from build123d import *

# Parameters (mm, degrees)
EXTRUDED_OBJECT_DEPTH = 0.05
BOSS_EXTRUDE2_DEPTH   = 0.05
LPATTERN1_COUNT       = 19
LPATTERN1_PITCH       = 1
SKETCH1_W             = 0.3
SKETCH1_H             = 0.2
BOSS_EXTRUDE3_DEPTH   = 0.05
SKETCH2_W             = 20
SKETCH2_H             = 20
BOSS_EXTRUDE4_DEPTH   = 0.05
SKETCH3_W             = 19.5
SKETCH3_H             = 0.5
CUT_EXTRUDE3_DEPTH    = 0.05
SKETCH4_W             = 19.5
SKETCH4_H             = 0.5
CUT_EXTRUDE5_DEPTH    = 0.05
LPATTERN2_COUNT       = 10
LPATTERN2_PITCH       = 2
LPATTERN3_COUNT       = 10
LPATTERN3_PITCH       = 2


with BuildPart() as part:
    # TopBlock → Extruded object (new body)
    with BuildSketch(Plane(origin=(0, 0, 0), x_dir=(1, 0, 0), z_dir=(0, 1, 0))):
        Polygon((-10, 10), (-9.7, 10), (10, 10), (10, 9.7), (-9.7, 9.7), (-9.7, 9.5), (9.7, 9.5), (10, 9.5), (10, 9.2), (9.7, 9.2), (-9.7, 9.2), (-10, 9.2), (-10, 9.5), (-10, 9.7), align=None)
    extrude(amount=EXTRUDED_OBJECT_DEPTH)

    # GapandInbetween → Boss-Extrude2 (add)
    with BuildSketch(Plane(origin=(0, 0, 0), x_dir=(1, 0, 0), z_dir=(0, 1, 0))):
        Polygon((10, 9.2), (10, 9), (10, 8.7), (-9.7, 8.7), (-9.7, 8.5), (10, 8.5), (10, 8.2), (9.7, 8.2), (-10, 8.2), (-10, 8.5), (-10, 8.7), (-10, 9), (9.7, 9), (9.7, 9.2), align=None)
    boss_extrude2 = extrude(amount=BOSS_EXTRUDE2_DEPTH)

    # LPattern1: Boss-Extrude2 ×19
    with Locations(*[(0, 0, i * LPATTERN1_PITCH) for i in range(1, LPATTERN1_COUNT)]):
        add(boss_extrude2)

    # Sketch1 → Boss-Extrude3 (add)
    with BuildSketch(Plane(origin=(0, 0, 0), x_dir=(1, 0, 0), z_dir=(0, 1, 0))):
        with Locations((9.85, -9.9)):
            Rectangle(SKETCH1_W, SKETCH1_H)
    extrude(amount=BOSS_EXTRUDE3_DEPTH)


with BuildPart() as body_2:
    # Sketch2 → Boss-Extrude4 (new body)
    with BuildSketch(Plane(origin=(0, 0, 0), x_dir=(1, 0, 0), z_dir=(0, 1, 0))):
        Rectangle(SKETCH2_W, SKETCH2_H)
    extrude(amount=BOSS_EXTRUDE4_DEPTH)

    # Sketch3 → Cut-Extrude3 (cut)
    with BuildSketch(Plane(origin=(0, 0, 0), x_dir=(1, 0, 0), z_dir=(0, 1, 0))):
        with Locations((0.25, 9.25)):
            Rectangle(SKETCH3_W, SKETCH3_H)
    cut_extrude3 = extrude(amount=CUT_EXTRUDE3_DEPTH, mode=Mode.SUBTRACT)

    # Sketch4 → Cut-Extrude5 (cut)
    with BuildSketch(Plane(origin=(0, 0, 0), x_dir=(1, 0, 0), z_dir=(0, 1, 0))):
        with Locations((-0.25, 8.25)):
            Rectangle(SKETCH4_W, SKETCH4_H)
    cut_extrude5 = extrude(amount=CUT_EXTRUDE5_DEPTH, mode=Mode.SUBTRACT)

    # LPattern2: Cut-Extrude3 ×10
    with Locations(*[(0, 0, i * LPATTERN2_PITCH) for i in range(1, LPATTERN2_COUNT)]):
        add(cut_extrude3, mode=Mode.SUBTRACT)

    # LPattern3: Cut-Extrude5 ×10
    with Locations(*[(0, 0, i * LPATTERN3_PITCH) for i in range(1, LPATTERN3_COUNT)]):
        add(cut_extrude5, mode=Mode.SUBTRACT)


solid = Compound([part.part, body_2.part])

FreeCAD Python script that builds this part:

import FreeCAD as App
import Part
import Sketcher

V = App.Vector
Q = App.Units.Quantity


def add_polygon(sketch, points):
    """Adds a closed chain of lines whose ends are joined by coincident constraints."""
    first, n = sketch.GeometryCount, len(points)
    for a, b in zip(points, points[1:] + points[:1]):
        sketch.addGeometry(Part.LineSegment(App.Vector(*a, 0), App.Vector(*b, 0)), False)
    for i in range(n):
        sketch.addConstraint(Sketcher.Constraint("Coincident", first + i, 2, first + (i + 1) % n, 1))

doc = App.newDocument("Part")
body = doc.addObject("PartDesign::Body", "Body")

# Sketch on XZ plane
sketch1 = body.newObject("Sketcher::SketchObject", "Sketch")
sketch1.AttachmentSupport = (doc.getObject("XZ_Plane"), [""])
sketch1.MapMode = "FlatFace"
add_polygon(sketch1, [(10, -10), (-10, -10), (-10, -9.2), (10, -9.2), (10, -9.5), (-9.7, -9.5), (-9.7, -9.7), (10, -9.7)])  # lines 0-7
sketch1.addConstraint(Sketcher.Constraint("Horizontal", 0))
sketch1.addConstraint(Sketcher.Constraint("Vertical", 1))
sketch1.addConstraint(Sketcher.Constraint("Horizontal", 2))
sketch1.addConstraint(Sketcher.Constraint("Vertical", 3))
sketch1.addConstraint(Sketcher.Constraint("Horizontal", 4))
sketch1.addConstraint(Sketcher.Constraint("Vertical", 5))
sketch1.addConstraint(Sketcher.Constraint("Horizontal", 6))
sketch1.addConstraint(Sketcher.Constraint("Vertical", 7))
sketch1.addConstraint(Sketcher.Constraint("Vertical", 3, 2, 6, 2))
sketch1.addConstraint(Sketcher.Constraint("Equal", 3, 7))
sketch1.addConstraint(Sketcher.Constraint("DistanceX", 0, 2, 0, 1, Q("20 mm")))
sketch1.addConstraint(Sketcher.Constraint("DistanceX", 4, 2, 4, 1, Q("19.7 mm")))
sketch1.addConstraint(Sketcher.Constraint("DistanceY", 1, 1, 1, 2, Q("0.8 mm")))
sketch1.addConstraint(Sketcher.Constraint("DistanceY", 3, 2, 3, 1, Q("0.3 mm")))
sketch1.addConstraint(Sketcher.Constraint("DistanceX", 0, 2, -1, 1, Q("10 mm")))
sketch1.addConstraint(Sketcher.Constraint("DistanceY", 0, 2, -1, 1, Q("10 mm")))
pad1 = body.newObject("PartDesign::Pad", "Pad")
pad1.Profile = sketch1
pad1.Length = 0.05
pad1.Reversed = True

# Sketch on XZ plane
sketch2 = body.newObject("Sketcher::SketchObject", "Sketch001")
sketch2.AttachmentSupport = (doc.getObject("XZ_Plane"), [""])
sketch2.MapMode = "FlatFace"
add_polygon(sketch2, [(10, -8.7), (10, -9.2), (9.7, -9.2), (9.7, -9), (-10, -9), (-10, -8.2), (10, -8.2), (10, -8.5), (-9.7, -8.5), (-9.7, -8.7)])  # lines 0-9
sketch2.addConstraint(Sketcher.Constraint("Vertical", 0))
sketch2.addConstraint(Sketcher.Constraint("Horizontal", 1))
sketch2.addConstraint(Sketcher.Constraint("Vertical", 2))
sketch2.addConstraint(Sketcher.Constraint("Horizontal", 3))
sketch2.addConstraint(Sketcher.Constraint("Vertical", 4))
sketch2.addConstraint(Sketcher.Constraint("Horizontal", 5))
sketch2.addConstraint(Sketcher.Constraint("Vertical", 6))
sketch2.addConstraint(Sketcher.Constraint("Horizontal", 7))
sketch2.addConstraint(Sketcher.Constraint("Vertical", 8))
sketch2.addConstraint(Sketcher.Constraint("Horizontal", 9))
sketch2.addConstraint(Sketcher.Constraint("Vertical", 0, 2, 5, 2))
sketch2.addConstraint(Sketcher.Constraint("Equal", 3, 7))
sketch2.addConstraint(Sketcher.Constraint("Equal", 1, 6))
sketch2.addConstraint(Sketcher.Constraint("Equal", 2, 8))
sketch2.addConstraint(Sketcher.Constraint("DistanceX", 5, 1, 5, 2, Q("20 mm")))
sketch2.addConstraint(Sketcher.Constraint("DistanceX", 1, 2, 1, 1, Q("0.3 mm")))
sketch2.addConstraint(Sketcher.Constraint("DistanceY", 0, 2, 0, 1, Q("0.5 mm")))
sketch2.addConstraint(Sketcher.Constraint("DistanceY", 2, 1, 2, 2, Q("0.2 mm")))
sketch2.addConstraint(Sketcher.Constraint("DistanceX", -1, 1, 0, 2, Q("10 mm")))
sketch2.addConstraint(Sketcher.Constraint("DistanceY", 2, 2, -1, 1, Q("9 mm")))
pad2 = body.newObject("PartDesign::Pad", "Pad001")
pad2.Profile = sketch2
pad2.Length = 0.05
pad2.Reversed = True
doc.recompute()

linearpattern = body.newObject("PartDesign::LinearPattern", "LinearPattern")
linearpattern.Originals = [pad2]
linearpattern.Direction = (doc.getObject("Z_Axis"), [""])
linearpattern.Mode = "offset"
linearpattern.Offset = 1
linearpattern.Occurrences = 19
body.Tip = linearpattern

# Sketch on XZ plane
sketch3 = body.newObject("Sketcher::SketchObject", "Sketch002")
sketch3.AttachmentSupport = (doc.getObject("XZ_Plane"), [""])
sketch3.MapMode = "FlatFace"
add_polygon(sketch3, [(9.7, 9.8), (9.7, 10), (10, 10), (10, 9.8)])  # lines 0-3
sketch3.addConstraint(Sketcher.Constraint("Vertical", 0))
sketch3.addConstraint(Sketcher.Constraint("Horizontal", 1))
sketch3.addConstraint(Sketcher.Constraint("Vertical", 2))
sketch3.addConstraint(Sketcher.Constraint("Horizontal", 3))
sketch3.addConstraint(Sketcher.Constraint("DistanceX", 1, 1, 1, 2, Q("0.3 mm")))
sketch3.addConstraint(Sketcher.Constraint("DistanceY", 0, 1, 0, 2, Q("0.2 mm")))
sketch3.addConstraint(Sketcher.Constraint("DistanceY", -1, 1, 0, 2, Q("10 mm")))
sketch3.addConstraint(Sketcher.Constraint("DistanceX", -1, 1, 1, 2, Q("10 mm")))
pad3 = body.newObject("PartDesign::Pad", "Pad002")
pad3.Profile = sketch3
pad3.Length = 0.05
pad3.Reversed = True
body2 = doc.addObject("PartDesign::Body", "Body001")

# Sketch on XZ plane
sketch4 = body2.newObject("Sketcher::SketchObject", "Sketch003")
sketch4.AttachmentSupport = (doc.getObject("XZ_Plane001"), [""])
sketch4.MapMode = "FlatFace"
add_polygon(sketch4, [(-10, -10), (-10, 10), (10, 10), (10, -10)])  # lines 0-3
sketch4.addConstraint(Sketcher.Constraint("Vertical", 0))
sketch4.addConstraint(Sketcher.Constraint("Horizontal", 1))
sketch4.addConstraint(Sketcher.Constraint("Vertical", 2))
sketch4.addConstraint(Sketcher.Constraint("Horizontal", 3))
sketch4.addConstraint(Sketcher.Constraint("Symmetric", 0, 2, 2, 2, -1, 1))
sketch4.addConstraint(Sketcher.Constraint("Equal", 3, 0))
sketch4.addConstraint(Sketcher.Constraint("DistanceX", 1, 1, 1, 2, Q("20 mm")))
pad4 = body2.newObject("PartDesign::Pad", "Pad003")
pad4.Profile = sketch4
pad4.Length = 0.05
pad4.Reversed = True

# Sketch on XZ plane
sketch5 = body2.newObject("Sketcher::SketchObject", "Sketch004")
sketch5.AttachmentSupport = (doc.getObject("XZ_Plane001"), [""])
sketch5.MapMode = "FlatFace"
add_polygon(sketch5, [(-9.5, -9.5), (-9.5, -9), (10, -9), (10, -9.5)])  # lines 0-3
sketch5.addConstraint(Sketcher.Constraint("Vertical", 0))
sketch5.addConstraint(Sketcher.Constraint("Horizontal", 1))
sketch5.addConstraint(Sketcher.Constraint("Vertical", 2))
sketch5.addConstraint(Sketcher.Constraint("Horizontal", 3))
sketch5.addConstraint(Sketcher.Constraint("DistanceX", 1, 1, 1, 2, Q("19.5 mm")))
sketch5.addConstraint(Sketcher.Constraint("DistanceY", 0, 1, 0, 2, Q("0.5 mm")))
sketch5.addConstraint(Sketcher.Constraint("DistanceY", 0, 2, -1, 1, Q("9 mm")))
sketch5.addConstraint(Sketcher.Constraint("DistanceX", -1, 1, 1, 2, Q("10 mm")))
pocket1 = body2.newObject("PartDesign::Pocket", "Pocket")
pocket1.Profile = sketch5
pocket1.Length = 0.05

# Sketch on XZ plane
sketch6 = body2.newObject("Sketcher::SketchObject", "Sketch005")
sketch6.AttachmentSupport = (doc.getObject("XZ_Plane001"), [""])
sketch6.MapMode = "FlatFace"
add_polygon(sketch6, [(-10, -8.5), (-10, -8), (9.5, -8), (9.5, -8.5)])  # lines 0-3
sketch6.addConstraint(Sketcher.Constraint("Vertical", 0))
sketch6.addConstraint(Sketcher.Constraint("Horizontal", 1))
sketch6.addConstraint(Sketcher.Constraint("Vertical", 2))
sketch6.addConstraint(Sketcher.Constraint("Horizontal", 3))
sketch6.addConstraint(Sketcher.Constraint("DistanceX", 1, 1, 1, 2, Q("19.5 mm")))
sketch6.addConstraint(Sketcher.Constraint("DistanceY", 0, 1, 0, 2, Q("0.5 mm")))
sketch6.addConstraint(Sketcher.Constraint("DistanceX", 0, 2, -1, 1, Q("10 mm")))
sketch6.addConstraint(Sketcher.Constraint("DistanceY", 0, 2, -1, 1, Q("8 mm")))
pocket2 = body2.newObject("PartDesign::Pocket", "Pocket001")
pocket2.Profile = sketch6
pocket2.Length = 0.05
doc.recompute()

linearpattern2 = body2.newObject("PartDesign::LinearPattern", "LinearPattern001")
linearpattern2.Originals = [pocket1]
linearpattern2.Direction = (doc.getObject("Z_Axis001"), [""])
linearpattern2.Mode = "offset"
linearpattern2.Offset = 2
linearpattern2.Occurrences = 10
body2.Tip = linearpattern2
doc.recompute()

linearpattern3 = body2.newObject("PartDesign::LinearPattern", "LinearPattern002")
linearpattern3.Originals = [pocket2]
linearpattern3.Direction = (doc.getObject("Z_Axis001"), [""])
linearpattern3.Mode = "offset"
linearpattern3.Offset = 2
linearpattern3.Occurrences = 10
body2.Tip = linearpattern3

doc.recompute()
